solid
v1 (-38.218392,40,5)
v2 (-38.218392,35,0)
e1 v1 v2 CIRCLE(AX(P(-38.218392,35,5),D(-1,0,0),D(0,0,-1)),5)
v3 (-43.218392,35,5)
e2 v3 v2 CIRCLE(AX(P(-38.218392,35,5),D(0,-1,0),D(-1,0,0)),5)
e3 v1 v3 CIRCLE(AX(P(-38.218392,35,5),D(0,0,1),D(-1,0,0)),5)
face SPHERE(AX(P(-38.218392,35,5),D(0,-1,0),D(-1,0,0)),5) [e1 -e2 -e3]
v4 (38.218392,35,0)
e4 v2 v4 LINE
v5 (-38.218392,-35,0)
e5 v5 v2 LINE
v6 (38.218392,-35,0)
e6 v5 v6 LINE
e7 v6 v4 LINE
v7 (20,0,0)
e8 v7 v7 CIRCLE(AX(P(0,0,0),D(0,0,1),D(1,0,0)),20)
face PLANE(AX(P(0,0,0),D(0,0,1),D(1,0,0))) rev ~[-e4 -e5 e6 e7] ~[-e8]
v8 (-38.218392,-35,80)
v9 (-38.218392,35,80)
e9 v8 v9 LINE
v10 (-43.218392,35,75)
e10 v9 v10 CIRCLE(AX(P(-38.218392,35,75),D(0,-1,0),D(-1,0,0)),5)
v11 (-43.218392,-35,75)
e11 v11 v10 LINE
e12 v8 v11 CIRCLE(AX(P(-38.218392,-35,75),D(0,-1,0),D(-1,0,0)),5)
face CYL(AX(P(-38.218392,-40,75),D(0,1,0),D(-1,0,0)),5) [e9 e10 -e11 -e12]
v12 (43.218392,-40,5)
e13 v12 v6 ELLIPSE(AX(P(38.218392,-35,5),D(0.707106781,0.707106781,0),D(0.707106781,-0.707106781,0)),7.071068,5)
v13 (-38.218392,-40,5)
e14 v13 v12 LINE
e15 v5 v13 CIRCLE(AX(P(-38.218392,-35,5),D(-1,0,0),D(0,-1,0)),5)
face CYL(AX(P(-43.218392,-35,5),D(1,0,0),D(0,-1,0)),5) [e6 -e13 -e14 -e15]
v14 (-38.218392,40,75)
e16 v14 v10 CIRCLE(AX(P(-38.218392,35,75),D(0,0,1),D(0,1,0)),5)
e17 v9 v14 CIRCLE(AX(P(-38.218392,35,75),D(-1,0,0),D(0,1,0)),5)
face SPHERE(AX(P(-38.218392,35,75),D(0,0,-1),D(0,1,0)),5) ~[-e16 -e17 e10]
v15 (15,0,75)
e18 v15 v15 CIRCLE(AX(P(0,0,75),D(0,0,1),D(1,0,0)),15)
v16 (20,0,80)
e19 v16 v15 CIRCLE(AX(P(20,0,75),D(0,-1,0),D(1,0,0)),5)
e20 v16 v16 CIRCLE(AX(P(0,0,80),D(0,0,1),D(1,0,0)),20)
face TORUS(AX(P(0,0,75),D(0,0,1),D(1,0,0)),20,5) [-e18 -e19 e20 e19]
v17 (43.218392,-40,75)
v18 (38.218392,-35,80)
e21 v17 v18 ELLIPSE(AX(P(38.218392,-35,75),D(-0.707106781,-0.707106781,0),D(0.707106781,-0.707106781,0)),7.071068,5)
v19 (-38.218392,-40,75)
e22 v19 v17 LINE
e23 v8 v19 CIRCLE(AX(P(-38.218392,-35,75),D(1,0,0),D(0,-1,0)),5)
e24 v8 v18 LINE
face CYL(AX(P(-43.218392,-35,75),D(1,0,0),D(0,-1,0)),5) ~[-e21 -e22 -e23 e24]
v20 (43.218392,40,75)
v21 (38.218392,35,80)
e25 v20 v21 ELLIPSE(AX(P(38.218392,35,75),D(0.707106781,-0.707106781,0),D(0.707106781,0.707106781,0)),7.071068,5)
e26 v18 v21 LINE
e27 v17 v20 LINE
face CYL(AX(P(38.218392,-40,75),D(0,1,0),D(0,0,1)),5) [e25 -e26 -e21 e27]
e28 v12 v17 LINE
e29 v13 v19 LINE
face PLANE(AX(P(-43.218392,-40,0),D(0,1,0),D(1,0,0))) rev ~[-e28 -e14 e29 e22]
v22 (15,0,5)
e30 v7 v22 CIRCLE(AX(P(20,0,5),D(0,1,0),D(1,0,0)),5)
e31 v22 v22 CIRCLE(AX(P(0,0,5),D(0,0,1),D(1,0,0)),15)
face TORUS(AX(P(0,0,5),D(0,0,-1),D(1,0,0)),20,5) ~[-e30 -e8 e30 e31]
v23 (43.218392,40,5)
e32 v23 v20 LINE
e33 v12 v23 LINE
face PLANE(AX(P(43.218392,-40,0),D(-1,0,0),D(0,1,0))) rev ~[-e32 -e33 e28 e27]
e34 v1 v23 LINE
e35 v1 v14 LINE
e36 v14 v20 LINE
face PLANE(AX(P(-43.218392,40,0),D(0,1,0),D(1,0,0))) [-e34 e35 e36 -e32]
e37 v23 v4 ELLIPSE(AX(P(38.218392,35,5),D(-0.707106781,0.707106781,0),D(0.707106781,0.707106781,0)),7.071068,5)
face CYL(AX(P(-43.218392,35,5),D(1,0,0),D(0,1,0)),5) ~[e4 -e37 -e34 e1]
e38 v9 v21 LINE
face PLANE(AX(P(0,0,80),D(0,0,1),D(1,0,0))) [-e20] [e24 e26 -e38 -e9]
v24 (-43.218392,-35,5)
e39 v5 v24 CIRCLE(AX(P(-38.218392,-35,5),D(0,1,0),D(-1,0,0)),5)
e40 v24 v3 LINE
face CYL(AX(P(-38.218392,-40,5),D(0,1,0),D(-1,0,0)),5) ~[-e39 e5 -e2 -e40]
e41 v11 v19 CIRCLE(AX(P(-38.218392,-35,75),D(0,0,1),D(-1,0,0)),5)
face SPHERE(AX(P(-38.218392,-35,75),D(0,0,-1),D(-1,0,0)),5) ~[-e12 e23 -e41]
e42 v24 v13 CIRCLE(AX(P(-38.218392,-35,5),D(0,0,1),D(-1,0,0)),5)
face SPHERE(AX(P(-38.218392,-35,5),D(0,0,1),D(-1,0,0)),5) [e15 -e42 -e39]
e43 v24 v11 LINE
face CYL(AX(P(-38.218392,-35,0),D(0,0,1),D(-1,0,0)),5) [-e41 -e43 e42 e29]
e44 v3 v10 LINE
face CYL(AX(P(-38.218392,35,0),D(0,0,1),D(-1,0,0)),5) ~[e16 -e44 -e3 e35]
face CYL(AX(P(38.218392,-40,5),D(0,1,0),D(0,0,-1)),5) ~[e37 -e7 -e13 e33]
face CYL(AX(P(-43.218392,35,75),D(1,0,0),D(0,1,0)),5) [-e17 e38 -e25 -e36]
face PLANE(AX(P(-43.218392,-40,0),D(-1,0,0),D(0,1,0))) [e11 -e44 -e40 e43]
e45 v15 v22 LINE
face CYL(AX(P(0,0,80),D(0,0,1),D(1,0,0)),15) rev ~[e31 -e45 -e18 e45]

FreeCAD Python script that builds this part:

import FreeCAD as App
import Part
import Sketcher


def edges_at(feature, points):
    """Names of the edges that pass closest to the given points."""
    edges = feature.Shape.Edges
    near = lambda p: min(range(len(edges)), key=lambda i: edges[i].distToShape(Part.Vertex(*p))[0])
    return sorted({f"Edge{near(p) + 1}" for p in points})


def add_polygon(sketch, points):
    """Adds a closed chain of lines whose ends are joined by coincident constraints."""
    first, n = sketch.GeometryCount, len(points)
    for a, b in zip(points, points[1:] + points[:1]):
        sketch.addGeometry(Part.LineSegment(App.Vector(*a, 0), App.Vector(*b, 0)), False)
    for i in range(n):
        sketch.addConstraint(Sketcher.Constraint("Coincident", first + i, 2, first + (i + 1) % n, 1))

doc = App.newDocument("Part")
body = doc.addObject("PartDesign::Body", "Body")

sketch1 = doc.addObject("Sketcher::SketchObject", "Sketch")
body.addObject(sketch1)
sketch1.AttachmentSupport = (doc.XY_Plane, [""])
sketch1.MapMode = "FlatFace"
add_polygon(sketch1, [(-43.218392, 40), (-43.218392, -40), (43.218392, -40), (43.218392, 40)])
sketch1.addConstraint([
    Sketcher.Constraint("Vertical", 0),
    Sketcher.Constraint("Horizontal", 1),
    Sketcher.Constraint("Vertical", 2),
    Sketcher.Constraint("Horizontal", 3),
    Sketcher.Constraint("Symmetric", 0, 2, 2, 2, -1, 1),
    Sketcher.Constraint("DistanceY", 0, 2, 0, 1, 80.0),
    Sketcher.Constraint("DistanceX", 1, 1, 1, 2, 86.436784),
])
pad1 = doc.addObject("PartDesign::Pad", "Pad")
body.addObject(pad1)
pad1.Profile = sketch1
pad1.Length = 80

sketch2 = doc.addObject("Sketcher::SketchObject", "Sketch001")
body.addObject(sketch2)
sketch2.AttachmentSupport = (doc.XY_Plane, [""])
sketch2.MapMode = "FlatFace"
sketch2.AttachmentOffset = App.Placement(App.Vector(0, 0, 80), App.Rotation())
sketch2.addGeometry(Part.Circle(App.Vector(0, 0, 0), App.Vector(0, 0, 1), 15), False)
sketch2.addConstraint([
    Sketcher.Constraint("Coincident", 0, 3, -1, 1),
    Sketcher.Constraint("Diameter", 0, 30.0),
])
pocket1 = doc.addObject("PartDesign::Pocket", "Pocket")
body.addObject(pocket1)
pocket1.Profile = sketch2
pocket1.Type = "ThroughAll"
doc.recompute()

fillet = doc.addObject("PartDesign::Fillet", "Fillet")
body.addObject(fillet)
fillet.Base = (pocket1, edges_at(pocket1, [
    (-43.218, -40, 40),
    (-43.218, 0, 0),
    (-43.218, 40, 40),
    (0, -40, 0),
    (0, 40, 0),
    (43.218, 0, 0),
    (0, 40, 80),
    (-43.218, 0, 80),
    (0, -40, 80),
    (43.218, 0, 80),
    (-15, 0, 80),
    (-15, 0, 0),
]))
fillet.Radius = 5

doc.recompute()
